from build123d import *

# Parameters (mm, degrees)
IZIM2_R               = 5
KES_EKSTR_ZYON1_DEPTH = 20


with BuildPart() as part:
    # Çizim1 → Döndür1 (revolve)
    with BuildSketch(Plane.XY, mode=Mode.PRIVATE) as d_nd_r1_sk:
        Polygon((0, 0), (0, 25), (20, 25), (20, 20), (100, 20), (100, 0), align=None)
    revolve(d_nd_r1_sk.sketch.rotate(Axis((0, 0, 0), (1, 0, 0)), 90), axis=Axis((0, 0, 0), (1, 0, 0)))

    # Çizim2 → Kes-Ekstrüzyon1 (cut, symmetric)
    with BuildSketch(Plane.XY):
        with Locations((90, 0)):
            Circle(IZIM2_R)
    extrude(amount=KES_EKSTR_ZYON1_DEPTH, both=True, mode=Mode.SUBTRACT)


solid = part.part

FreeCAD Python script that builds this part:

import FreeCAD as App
import Part
import Sketcher
Q = App.Units.Quantity


def add_polygon(sketch, points):
    """Adds a closed chain of lines whose ends are joined by coincident constraints."""
    first, n = sketch.GeometryCount, len(points)
    for a, b in zip(points, points[1:] + points[:1]):
        sketch.addGeometry(Part.LineSegment(App.Vector(*a, 0), App.Vector(*b, 0)), False)
    for i in range(n):
        sketch.addConstraint(Sketcher.Constraint("Coincident", first + i, 2, first + (i + 1) % n, 1))

doc = App.newDocument("Part")
params = doc.addObject("Spreadsheet::Sheet", "Params")
for row, (alias, value) in enumerate([
    ("sketch1_width", "100 mm"),
    ("sketch1_width2", "80 mm"),
    ("sketch1_height", "25 mm"),
    ("revolution_angle", "360 deg"),
    ("sketch2_diameter", "10 mm"),
    ("pocket1_length", "40 mm"),
], start=1):
    params.set(f"A{row}", alias)
    params.set(f"B{row}", "=" + value)
    params.setAlias(f"B{row}", alias)

body = doc.addObject("PartDesign::Body", "Body")

sketch1 = doc.addObject("Sketcher::SketchObject", "Sketch")
body.addObject(sketch1)
sketch1.AttachmentSupport = (doc.XY_Plane, [""])
sketch1.MapMode = "FlatFace"
add_polygon(sketch1, [(0, 25), (0, 0), (100, 0), (100, 20), (20, 20), (20, 25)])
sketch1.addConstraint([
    Sketcher.Constraint("Vertical", 0),
    Sketcher.Constraint("Horizontal", 1),
    Sketcher.Constraint("Vertical", 2),
    Sketcher.Constraint("Horizontal", 3),
    Sketcher.Constraint("Vertical", 4),
    Sketcher.Constraint("Horizontal", 5),
    Sketcher.Constraint("Coincident", 0, 2, -1, 1),
    Sketcher.Constraint("Equal", 5, 2),
    Sketcher.Constraint("DistanceX", 1, 1, 1, 2, Q("100 mm")),
    Sketcher.Constraint("DistanceX", 3, 2, 3, 1, Q("80 mm")),
    Sketcher.Constraint("DistanceY", 0, 2, 0, 1, Q("25 mm")),
])
sketch1.setExpression("Constraints[14]", "Params.sketch1_width")
sketch1.setExpression("Constraints[15]", "Params.sketch1_width2")
sketch1.setExpression("Constraints[16]", "Params.sketch1_height")
revolution = doc.addObject("PartDesign::Revolution", "Revolution")
body.addObject(revolution)
revolution.Profile = sketch1
revolution.ReferenceAxis = (sketch1, ["H_Axis"])
revolution.setExpression("Angle", "Params.revolution_angle")

sketch2 = doc.addObject("Sketcher::SketchObject", "Sketch001")
body.addObject(sketch2)
sketch2.AttachmentSupport = (doc.XY_Plane, [""])
sketch2.MapMode = "FlatFace"
sketch2.addGeometry(Part.Circle(App.Vector(90, 0, 0), App.Vector(0, 0, 1), 5), False)
sketch2.addConstraint([
    Sketcher.Constraint("PointOnObject", 0, 3, -1),
    Sketcher.Constraint("Diameter", 0, Q("10 mm")),
    Sketcher.Constraint("DistanceX", -1, 1, 0, 3, Q("90 mm")),
])
sketch2.setExpression("Constraints[1]", "Params.sketch2_diameter")
pocket1 = doc.addObject("PartDesign::Pocket", "Pocket")
body.addObject(pocket1)
pocket1.Profile = sketch2
pocket1.setExpression("Length", "Params.pocket1_length")
pocket1.Midplane = True

doc.recompute()
